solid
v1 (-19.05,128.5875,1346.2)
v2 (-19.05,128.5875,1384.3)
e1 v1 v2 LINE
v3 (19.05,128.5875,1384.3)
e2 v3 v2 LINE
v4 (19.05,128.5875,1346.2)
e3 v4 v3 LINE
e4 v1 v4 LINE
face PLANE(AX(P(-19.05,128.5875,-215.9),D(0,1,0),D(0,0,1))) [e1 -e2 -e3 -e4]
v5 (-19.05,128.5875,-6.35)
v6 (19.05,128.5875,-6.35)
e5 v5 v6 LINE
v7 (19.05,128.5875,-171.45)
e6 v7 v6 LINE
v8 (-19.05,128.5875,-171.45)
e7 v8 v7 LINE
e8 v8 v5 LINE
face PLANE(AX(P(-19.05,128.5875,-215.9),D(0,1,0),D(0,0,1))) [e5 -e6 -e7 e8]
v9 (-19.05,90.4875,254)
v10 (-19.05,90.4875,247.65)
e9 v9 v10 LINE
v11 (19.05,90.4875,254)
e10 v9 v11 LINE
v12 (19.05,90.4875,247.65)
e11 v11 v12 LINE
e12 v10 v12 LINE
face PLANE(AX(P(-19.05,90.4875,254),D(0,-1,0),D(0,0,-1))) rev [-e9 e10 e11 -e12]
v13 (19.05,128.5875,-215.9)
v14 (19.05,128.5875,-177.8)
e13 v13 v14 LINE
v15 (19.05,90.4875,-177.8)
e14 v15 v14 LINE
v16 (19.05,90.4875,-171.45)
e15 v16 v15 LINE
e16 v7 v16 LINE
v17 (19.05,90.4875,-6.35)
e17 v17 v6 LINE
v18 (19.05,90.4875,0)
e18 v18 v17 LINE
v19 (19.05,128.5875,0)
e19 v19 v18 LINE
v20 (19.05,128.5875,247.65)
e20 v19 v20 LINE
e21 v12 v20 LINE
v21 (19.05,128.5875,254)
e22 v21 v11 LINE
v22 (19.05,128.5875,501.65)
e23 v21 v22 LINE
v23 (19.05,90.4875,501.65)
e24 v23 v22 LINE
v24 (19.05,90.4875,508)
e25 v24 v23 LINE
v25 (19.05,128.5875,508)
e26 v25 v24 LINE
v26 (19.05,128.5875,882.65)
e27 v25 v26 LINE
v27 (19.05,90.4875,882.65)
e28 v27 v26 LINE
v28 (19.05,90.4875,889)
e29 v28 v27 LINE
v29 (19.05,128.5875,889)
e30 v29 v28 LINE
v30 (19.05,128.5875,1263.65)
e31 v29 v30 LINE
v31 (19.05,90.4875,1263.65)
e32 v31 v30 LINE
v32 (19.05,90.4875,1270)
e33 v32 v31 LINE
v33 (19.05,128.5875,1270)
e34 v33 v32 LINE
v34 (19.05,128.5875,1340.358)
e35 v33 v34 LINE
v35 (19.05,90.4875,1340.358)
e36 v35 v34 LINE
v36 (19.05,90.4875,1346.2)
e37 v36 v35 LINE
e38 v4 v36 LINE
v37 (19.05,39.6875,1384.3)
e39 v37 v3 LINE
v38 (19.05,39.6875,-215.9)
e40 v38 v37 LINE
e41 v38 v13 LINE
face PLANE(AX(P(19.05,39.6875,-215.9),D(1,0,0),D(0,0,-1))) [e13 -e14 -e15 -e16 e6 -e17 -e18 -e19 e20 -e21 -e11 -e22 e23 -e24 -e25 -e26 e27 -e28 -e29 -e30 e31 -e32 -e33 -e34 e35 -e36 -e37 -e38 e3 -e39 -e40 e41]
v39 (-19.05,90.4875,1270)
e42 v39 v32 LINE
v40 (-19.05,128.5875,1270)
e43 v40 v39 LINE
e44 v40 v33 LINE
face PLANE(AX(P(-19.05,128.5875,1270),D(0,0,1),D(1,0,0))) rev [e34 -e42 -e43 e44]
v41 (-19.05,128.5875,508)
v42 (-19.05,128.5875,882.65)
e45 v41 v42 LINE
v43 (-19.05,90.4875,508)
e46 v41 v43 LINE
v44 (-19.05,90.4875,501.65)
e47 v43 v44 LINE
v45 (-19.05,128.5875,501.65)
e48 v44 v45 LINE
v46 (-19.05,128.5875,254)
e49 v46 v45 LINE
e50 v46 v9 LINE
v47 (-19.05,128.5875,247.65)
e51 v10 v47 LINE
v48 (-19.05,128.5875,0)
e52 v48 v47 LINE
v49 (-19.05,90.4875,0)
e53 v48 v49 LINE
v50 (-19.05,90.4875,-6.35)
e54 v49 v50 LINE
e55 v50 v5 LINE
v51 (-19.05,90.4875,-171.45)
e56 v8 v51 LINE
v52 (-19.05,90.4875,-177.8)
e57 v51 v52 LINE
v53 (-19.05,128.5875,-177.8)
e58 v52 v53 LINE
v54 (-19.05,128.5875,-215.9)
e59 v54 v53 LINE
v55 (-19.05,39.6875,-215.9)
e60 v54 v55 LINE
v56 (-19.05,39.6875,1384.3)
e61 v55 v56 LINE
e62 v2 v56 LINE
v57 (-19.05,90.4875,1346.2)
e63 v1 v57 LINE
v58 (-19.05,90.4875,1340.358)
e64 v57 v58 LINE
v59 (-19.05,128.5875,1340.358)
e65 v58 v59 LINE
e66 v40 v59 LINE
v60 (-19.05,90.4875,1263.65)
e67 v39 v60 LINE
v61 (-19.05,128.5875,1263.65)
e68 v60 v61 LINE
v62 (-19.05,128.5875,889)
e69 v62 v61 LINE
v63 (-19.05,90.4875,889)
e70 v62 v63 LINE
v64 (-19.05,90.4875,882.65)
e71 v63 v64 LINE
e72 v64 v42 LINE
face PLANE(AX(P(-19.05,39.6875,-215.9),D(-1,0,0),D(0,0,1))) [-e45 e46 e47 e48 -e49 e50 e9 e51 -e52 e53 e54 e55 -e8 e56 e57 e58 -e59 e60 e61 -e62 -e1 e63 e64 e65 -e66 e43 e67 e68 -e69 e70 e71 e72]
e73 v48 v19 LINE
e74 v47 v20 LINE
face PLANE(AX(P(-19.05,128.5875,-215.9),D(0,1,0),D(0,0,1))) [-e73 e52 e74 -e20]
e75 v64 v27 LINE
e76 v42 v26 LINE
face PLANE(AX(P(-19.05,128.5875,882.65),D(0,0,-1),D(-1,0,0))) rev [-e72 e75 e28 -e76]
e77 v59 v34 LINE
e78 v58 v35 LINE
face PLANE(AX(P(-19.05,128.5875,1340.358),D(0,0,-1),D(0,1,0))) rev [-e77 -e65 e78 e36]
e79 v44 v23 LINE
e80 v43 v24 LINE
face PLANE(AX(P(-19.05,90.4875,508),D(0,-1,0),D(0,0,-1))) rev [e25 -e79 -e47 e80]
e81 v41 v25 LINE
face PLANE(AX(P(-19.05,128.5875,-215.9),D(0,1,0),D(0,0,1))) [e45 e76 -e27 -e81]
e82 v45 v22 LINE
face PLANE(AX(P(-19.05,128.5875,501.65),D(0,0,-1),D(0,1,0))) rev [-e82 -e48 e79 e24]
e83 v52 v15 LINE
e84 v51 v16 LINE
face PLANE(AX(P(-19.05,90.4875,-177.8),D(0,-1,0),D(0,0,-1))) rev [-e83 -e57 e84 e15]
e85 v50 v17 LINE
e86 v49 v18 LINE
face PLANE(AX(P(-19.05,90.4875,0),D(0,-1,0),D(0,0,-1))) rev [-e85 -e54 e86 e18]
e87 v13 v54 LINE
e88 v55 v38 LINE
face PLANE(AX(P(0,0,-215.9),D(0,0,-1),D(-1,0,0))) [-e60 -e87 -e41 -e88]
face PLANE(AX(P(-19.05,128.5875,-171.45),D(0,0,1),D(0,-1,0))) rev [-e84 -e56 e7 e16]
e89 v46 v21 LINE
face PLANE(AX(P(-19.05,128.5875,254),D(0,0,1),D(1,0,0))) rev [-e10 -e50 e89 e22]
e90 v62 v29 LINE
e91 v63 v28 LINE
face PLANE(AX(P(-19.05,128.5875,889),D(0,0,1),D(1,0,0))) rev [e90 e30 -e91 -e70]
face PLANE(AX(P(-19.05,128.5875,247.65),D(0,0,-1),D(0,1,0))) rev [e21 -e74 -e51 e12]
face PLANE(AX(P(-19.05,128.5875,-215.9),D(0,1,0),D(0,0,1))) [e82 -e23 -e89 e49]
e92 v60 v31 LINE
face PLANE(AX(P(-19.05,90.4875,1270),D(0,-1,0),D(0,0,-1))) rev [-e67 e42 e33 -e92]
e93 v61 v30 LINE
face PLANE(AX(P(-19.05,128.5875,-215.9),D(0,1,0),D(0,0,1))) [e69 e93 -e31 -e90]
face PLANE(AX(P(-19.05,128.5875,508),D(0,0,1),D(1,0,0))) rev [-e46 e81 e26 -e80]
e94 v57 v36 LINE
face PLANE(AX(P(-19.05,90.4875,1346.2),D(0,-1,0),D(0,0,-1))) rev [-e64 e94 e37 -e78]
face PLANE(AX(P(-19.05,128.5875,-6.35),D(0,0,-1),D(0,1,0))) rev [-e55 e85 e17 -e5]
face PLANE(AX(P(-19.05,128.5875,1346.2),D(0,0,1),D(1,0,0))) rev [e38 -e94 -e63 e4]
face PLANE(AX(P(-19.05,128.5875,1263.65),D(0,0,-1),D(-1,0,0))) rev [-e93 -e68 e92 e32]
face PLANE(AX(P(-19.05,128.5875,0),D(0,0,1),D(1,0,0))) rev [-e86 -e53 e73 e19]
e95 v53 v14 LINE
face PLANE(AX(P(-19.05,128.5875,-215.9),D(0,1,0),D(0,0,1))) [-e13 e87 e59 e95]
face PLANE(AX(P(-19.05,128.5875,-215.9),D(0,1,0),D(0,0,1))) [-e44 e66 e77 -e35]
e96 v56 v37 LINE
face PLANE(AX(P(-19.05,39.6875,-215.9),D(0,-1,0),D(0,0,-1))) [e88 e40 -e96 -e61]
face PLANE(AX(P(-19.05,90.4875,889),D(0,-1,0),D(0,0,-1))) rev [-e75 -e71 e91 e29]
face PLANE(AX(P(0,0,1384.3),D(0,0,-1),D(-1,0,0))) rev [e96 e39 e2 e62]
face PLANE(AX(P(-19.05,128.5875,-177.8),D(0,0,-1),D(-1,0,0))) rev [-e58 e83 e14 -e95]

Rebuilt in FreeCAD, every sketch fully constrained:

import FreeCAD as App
import Part
import Sketcher
Q = App.Units.Quantity


def add_polygon(sketch, points):
    """Adds a closed chain of lines whose ends are joined by coincident constraints."""
    first, n = sketch.GeometryCount, len(points)
    for a, b in zip(points, points[1:] + points[:1]):
        sketch.addGeometry(Part.LineSegment(App.Vector(*a, 0), App.Vector(*b, 0)), False)
    for i in range(n):
        sketch.addConstraint(Sketcher.Constraint("Coincident", first + i, 2, first + (i + 1) % n, 1))

doc = App.newDocument("Part")
params = doc.addObject("Spreadsheet::Sheet", "Params")
for row, (alias, value) in enumerate([
    ("sketch1_width", "1.5 in"),
    ("sketch1_height", "3.5 in"),
    ("pad1_length", "54.5 in"),
    ("pad1_length2", "8.5 in"),
    ("sketch2_width", "1.5 in"),
    ("sketch2_height", "0.23 in"),
    ("sketch2_height2", "0.25 in"),
], start=1):
    params.set(f"A{row}", alias)
    params.set(f"B{row}", "=" + value)
    params.setAlias(f"B{row}", alias)

body = doc.addObject("PartDesign::Body", "Body")

# Sketch on XY plane
sketch1 = body.newObject("Sketcher::SketchObject", "Sketch")
sketch1.AttachmentSupport = (doc.getObject("XY_Plane"), [""])
sketch1.MapMode = "FlatFace"
add_polygon(sketch1, [(-19.05, 128.5875), (-19.05, 39.6875), (19.05, 39.6875), (19.05, 128.5875)])  # lines 0-3
sketch1.addConstraint([
    Sketcher.Constraint("Vertical", 0),
    Sketcher.Constraint("Horizontal", 1),
    Sketcher.Constraint("Vertical", 2),
    Sketcher.Constraint("Horizontal", 3),
    Sketcher.Constraint("DistanceX", 1, 1, 1, 2, Q("1.5 in")),
    Sketcher.Constraint("DistanceY", 0, 2, 0, 1, Q("3.5 in")),
    Sketcher.Constraint("DistanceX", 0, 2, -1, 1, Q("0.75 in")),
    Sketcher.Constraint("DistanceY", -1, 1, 0, 2, Q("1.5625 in")),
])
sketch1.setExpression("Constraints[8]", "Params.sketch1_width")
sketch1.setExpression("Constraints[9]", "Params.sketch1_height")
pad1 = body.newObject("PartDesign::Pad", "Pad")
pad1.Profile = sketch1
pad1.Type = "TwoLengths"
pad1.setExpression("Length", "Params.pad1_length")
pad1.setExpression("Length2", "Params.pad1_length2")

# Sketch on YZ plane
sketch2 = body.newObject("Sketcher::SketchObject", "Sketch001")
sketch2.AttachmentSupport = (doc.getObject("YZ_Plane"), [""])
sketch2.MapMode = "FlatFace"
sketch2.AttachmentOffset = App.Placement(App.Vector(0, 0, 0.75 * 25.4), App.Rotation())
add_polygon(sketch2, [(128.5875, 1346.2), (90.4875, 1346.2), (90.4875, 1340.358), (128.5875, 1340.358)])  # lines 0-3
add_polygon(sketch2, [(128.5875, 1270), (90.4875, 1270), (90.4875, 1263.65), (128.5875, 1263.65)])  # lines 4-7
add_polygon(sketch2, [(128.5875, 889), (90.4875, 889), (90.4875, 882.65), (128.5875, 882.65)])  # lines 8-11
add_polygon(sketch2, [(128.5875, 508), (90.4875, 508), (90.4875, 501.65), (128.5875, 501.65)])  # lines 12-15
add_polygon(sketch2, [(128.5875, 254), (90.4875, 254), (90.4875, 247.65), (128.5875, 247.65)])  # lines 16-19
add_polygon(sketch2, [(128.5875, 0), (90.4875, 0), (90.4875, -6.35), (128.5875, -6.35)])  # lines 20-23
add_polygon(sketch2, [(128.5875, -171.45), (90.4875, -171.45), (90.4875, -177.8), (128.5875, -177.8)])  # lines 24-27
sketch2.addConstraint([
    Sketcher.Constraint("Horizontal", 0),
    Sketcher.Constraint("Vertical", 1),
    Sketcher.Constraint("Horizontal", 2),
    Sketcher.Constraint("Vertical", 3),
    Sketcher.Constraint("Horizontal", 4),
    Sketcher.Constraint("Vertical", 5),
    Sketcher.Constraint("Horizontal", 6),
    Sketcher.Constraint("Vertical", 7),
    Sketcher.Constraint("Horizontal", 8),
    Sketcher.Constraint("Vertical", 9),
    Sketcher.Constraint("Horizontal", 10),
    Sketcher.Constraint("Vertical", 11),
    Sketcher.Constraint("Horizontal", 12),
    Sketcher.Constraint("Vertical", 13),
    Sketcher.Constraint("Horizontal", 14),
    Sketcher.Constraint("Vertical", 15),
    Sketcher.Constraint("Horizontal", 16),
    Sketcher.Constraint("Vertical", 17),
    Sketcher.Constraint("Horizontal", 18),
    Sketcher.Constraint("Vertical", 19),
    Sketcher.Constraint("Horizontal", 20),
    Sketcher.Constraint("Vertical", 21),
    Sketcher.Constraint("Horizontal", 22),
    Sketcher.Constraint("Vertical", 23),
    Sketcher.Constraint("Horizontal", 24),
    Sketcher.Constraint("Vertical", 25),
    Sketcher.Constraint("Horizontal", 26),
    Sketcher.Constraint("Vertical", 27),
    Sketcher.Constraint("PointOnObject", 20, 2, -1),
    Sketcher.Constraint("Vertical", 1, 2, 4, 2),
    Sketcher.Constraint("Vertical", 3, 2, 6, 2),
    Sketcher.Constraint("Vertical", 5, 2, 8, 2),
    Sketcher.Constraint("Vertical", 7, 2, 10, 2),
    Sketcher.Constraint("Vertical", 9, 2, 12, 2),
    Sketcher.Constraint("Vertical", 11, 2, 14, 2),
    Sketcher.Constraint("Vertical", 13, 2, 16, 2),
    Sketcher.Constraint("Vertical", 15, 2, 18, 2),
    Sketcher.Constraint("Vertical", 17, 2, 20, 2),
    Sketcher.Constraint("Vertical", 19, 2, 22, 2),
    Sketcher.Constraint("Vertical", 21, 2, 24, 2),
    Sketcher.Constraint("Vertical", 23, 2, 26, 2),
    Sketcher.Constraint("Equal", 7, 9),
    Sketcher.Constraint("Equal", 11, 13),
    Sketcher.Constraint("Equal", 15, 17),
    Sketcher.Constraint("Equal", 19, 21),
    Sketcher.Constraint("Equal", 23, 25),
    Sketcher.Constraint("DistanceX", 0, 2, 0, 1, Q("1.5 in")),
    Sketcher.Constraint("DistanceY", -1, 1, 0, 2, Q("53 in")),
    Sketcher.Constraint("DistanceY", -1, 1, 4, 2, Q("50 in")),
    Sketcher.Constraint("DistanceY", -1, 1, 8, 2, Q("35 in")),
    Sketcher.Constraint("DistanceY", -1, 1, 12, 2, Q("20 in")),
    Sketcher.Constraint("DistanceY", -1, 1, 16, 2, Q("10 in")),
    Sketcher.Constraint("DistanceY", 25, 2, -1, 1, Q("7 in")),
    Sketcher.Constraint("DistanceY", 1, 2, 1, 1, Q("0.23 in")),
    Sketcher.Constraint("DistanceY", 5, 2, 5, 1, Q("0.25 in")),
    Sketcher.Constraint("DistanceX", -1, 1, 0, 2, Q("3.5625 in")),
])
sketch2.setExpression("Constraints[74]", "Params.sketch2_width")
sketch2.setExpression("Constraints[81]", "Params.sketch2_height")
sketch2.setExpression("Constraints[82]", "Params.sketch2_height2")
pocket1 = body.newObject("PartDesign::Pocket", "Pocket")
pocket1.Profile = sketch2
pocket1.Type = "ThroughAll"

doc.recompute()
